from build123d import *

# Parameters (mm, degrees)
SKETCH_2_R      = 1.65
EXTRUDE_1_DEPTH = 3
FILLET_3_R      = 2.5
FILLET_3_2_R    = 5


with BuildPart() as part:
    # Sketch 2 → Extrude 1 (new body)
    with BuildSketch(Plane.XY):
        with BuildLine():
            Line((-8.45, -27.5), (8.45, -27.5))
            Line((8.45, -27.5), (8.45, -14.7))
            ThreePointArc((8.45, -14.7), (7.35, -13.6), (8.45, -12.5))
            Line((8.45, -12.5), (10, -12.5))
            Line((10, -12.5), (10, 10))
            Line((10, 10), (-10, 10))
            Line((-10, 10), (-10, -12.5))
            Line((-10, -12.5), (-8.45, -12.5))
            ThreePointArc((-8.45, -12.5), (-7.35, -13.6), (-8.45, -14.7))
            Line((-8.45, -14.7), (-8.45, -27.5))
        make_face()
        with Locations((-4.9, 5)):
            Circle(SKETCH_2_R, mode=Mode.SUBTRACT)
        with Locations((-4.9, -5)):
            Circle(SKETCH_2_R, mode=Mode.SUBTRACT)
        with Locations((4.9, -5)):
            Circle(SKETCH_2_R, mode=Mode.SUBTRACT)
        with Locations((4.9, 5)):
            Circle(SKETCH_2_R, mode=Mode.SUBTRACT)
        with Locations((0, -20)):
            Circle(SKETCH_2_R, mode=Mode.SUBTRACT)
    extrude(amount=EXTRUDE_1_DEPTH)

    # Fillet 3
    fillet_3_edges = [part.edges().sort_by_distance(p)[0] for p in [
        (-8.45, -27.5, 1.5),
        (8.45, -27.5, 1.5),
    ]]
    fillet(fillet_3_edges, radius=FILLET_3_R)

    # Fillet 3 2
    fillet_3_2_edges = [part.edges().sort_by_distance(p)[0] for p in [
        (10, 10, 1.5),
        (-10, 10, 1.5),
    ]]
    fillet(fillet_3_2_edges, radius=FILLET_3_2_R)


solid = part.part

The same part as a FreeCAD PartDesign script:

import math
import FreeCAD as App
import Part
import Sketcher
from FreeCAD import Vector


def edges_at(feature, points):
    """Names of the edges that pass closest to the given points."""
    edges = feature.Shape.Edges
    near = lambda p: min(range(len(edges)), key=lambda i: edges[i].distToShape(Part.Vertex(*p))[0])
    return sorted({f"Edge{near(p) + 1}" for p in points})

doc = App.newDocument("Part")
body = doc.addObject("PartDesign::Body", "Body")

# Sketch on XY plane
sketch1 = doc.addObject("Sketcher::SketchObject", "Sketch")
body.addObject(sketch1)
sketch1.AttachmentSupport = (doc.XY_Plane, [""])
sketch1.MapMode = "FlatFace"
sketch1.addGeometry(Part.LineSegment(Vector(-8.4, -27.5, 0), Vector(8.4, -27.5, 0)), False)
sketch1.addGeometry(Part.LineSegment(Vector(8.4, -27.5, 0), Vector(8.4, -14.7, 0)), False)
sketch1.addGeometry(Part.ArcOfCircle(Part.Circle(Vector(8.4, -13.6, 0), Vector(0, 0, 1), 1.1), math.radians(90), math.radians(270)), False)
sketch1.addGeometry(Part.LineSegment(Vector(8.4, -12.5, 0), Vector(10, -12.5, 0)), False)
sketch1.addGeometry(Part.LineSegment(Vector(10, -12.5, 0), Vector(10, 10, 0)), False)
sketch1.addGeometry(Part.LineSegment(Vector(10, 10, 0), Vector(-10, 10, 0)), False)
sketch1.addGeometry(Part.LineSegment(Vector(-10, 10, 0), Vector(-10, -12.5, 0)), False)
sketch1.addGeometry(Part.LineSegment(Vector(-10, -12.5, 0), Vector(-8.4, -12.5, 0)), False)
sketch1.addGeometry(Part.ArcOfCircle(Part.Circle(Vector(-8.4, -13.6, 0), Vector(0, 0, 1), 1.1), math.radians(-90), math.radians(90)), False)
sketch1.addGeometry(Part.LineSegment(Vector(-8.4, -14.7, 0), Vector(-8.4, -27.5, 0)), False)
sketch1.addGeometry(Part.Circle(Vector(0, -20, 0), Vector(0, 0, 1), 1.6), False)
sketch1.addGeometry(Part.Circle(Vector(-4.9, -5, 0), Vector(0, 0, 1), 1.6), False)
sketch1.addGeometry(Part.Circle(Vector(-4.9, 5, 0), Vector(0, 0, 1), 1.6), False)
sketch1.addGeometry(Part.Circle(Vector(4.9, -5, 0), Vector(0, 0, 1), 1.6), False)
sketch1.addGeometry(Part.Circle(Vector(4.9, 5, 0), Vector(0, 0, 1), 1.6), False)
sketch1.addConstraint(Sketcher.Constraint("Coincident", 0, 2, 1, 1))
sketch1.addConstraint(Sketcher.Constraint("Coincident", 1, 2, 2, 2))
sketch1.addConstraint(Sketcher.Constraint("Tangent", 2, 1, 3, 1))
sketch1.addConstraint(Sketcher.Constraint("Coincident", 3, 2, 4, 1))
sketch1.addConstraint(Sketcher.Constraint("Coincident", 4, 2, 5, 1))
sketch1.addConstraint(Sketcher.Constraint("Coincident", 5, 2, 6, 1))
sketch1.addConstraint(Sketcher.Constraint("Coincident", 6, 2, 7, 1))
sketch1.addConstraint(Sketcher.Constraint("Tangent", 7, 2, 8, 2))
sketch1.addConstraint(Sketcher.Constraint("Coincident", 8, 1, 9, 1))
sketch1.addConstraint(Sketcher.Constraint("Coincident", 9, 2, 0, 1))
sketch1.addConstraint(Sketcher.Constraint("Horizontal", 0))
sketch1.addConstraint(Sketcher.Constraint("Vertical", 1))
sketch1.addConstraint(Sketcher.Constraint("Horizontal", 3))
sketch1.addConstraint(Sketcher.Constraint("Vertical", 4))
sketch1.addConstraint(Sketcher.Constraint("Horizontal", 5))
sketch1.addConstraint(Sketcher.Constraint("Vertical", 6))
sketch1.addConstraint(Sketcher.Constraint("Horizontal", 7))
sketch1.addConstraint(Sketcher.Constraint("Vertical", 9))
sketch1.addConstraint(Sketcher.Constraint("Equal", 2, 8))
sketch1.addConstraint(Sketcher.Constraint("Equal", 10, 11))
sketch1.addConstraint(Sketcher.Constraint("Equal", 11, 12))
sketch1.addConstraint(Sketcher.Constraint("Equal", 12, 13))
sketch1.addConstraint(Sketcher.Constraint("Equal", 13, 14))
sketch1.addConstraint(Sketcher.Constraint("Symmetric", 12, 3, 13, 3, -1, 1))
sketch1.addConstraint(Sketcher.Constraint("Symmetric", 11, 3, 14, 3, -1, 1))
sketch1.addConstraint(Sketcher.Constraint("Symmetric", 2, 3, 8, 3, -2))
sketch1.addConstraint(Sketcher.Constraint("Symmetric", 11, 3, 13, 3, -2))
sketch1.addConstraint(Sketcher.Constraint("PointOnObject", 10, 3, -2))
sketch1.addConstraint(Sketcher.Constraint("Vertical", 2, 3, 0, 2))
sketch1.addConstraint(Sketcher.Constraint("Vertical", 7, 2, 8, 1))
sketch1.addConstraint(Sketcher.Constraint("Equal", 3, 7))
sketch1.addConstraint(Sketcher.Constraint("Diameter", 10, 3.3))
sketch1.addConstraint(Sketcher.Constraint("Radius", 2, 1.1))
sketch1.addConstraint(Sketcher.Constraint("DistanceX", 5, 2, 5, 1, 20.0))
sketch1.addConstraint(Sketcher.Constraint("DistanceX", 0, 1, 0, 2, 16.9))
sketch1.addConstraint(Sketcher.Constraint("DistanceY", 1, 1, 1, 2, 12.8))
sketch1.addConstraint(Sketcher.Constraint("DistanceY", 4, 1, 4, 2, 22.5))
sketch1.addConstraint(Sketcher.Constraint("DistanceY", 10, 3, -1, 1, 20.0))
sketch1.addConstraint(Sketcher.Constraint("DistanceY", 11, 3, -1, 1, 5.0))
sketch1.addConstraint(Sketcher.Constraint("DistanceY", -1, 1, 4, 2, 10.0))
sketch1.addConstraint(Sketcher.Constraint("DistanceX", 11, 3, -1, 1, 4.9))
pad1 = doc.addObject("PartDesign::Pad", "Pad")
body.addObject(pad1)
pad1.Profile = sketch1
pad1.Length = 3
doc.recompute()

fillet = doc.addObject("PartDesign::Fillet", "Fillet")
body.addObject(fillet)
fillet.Base = (pad1, edges_at(pad1, [(-8.45, -27.5, 1.5), (8.45, -27.5, 1.5)]))
fillet.Radius = 2.5
doc.recompute()

fillet2 = doc.addObject("PartDesign::Fillet", "Fillet001")
body.addObject(fillet2)
fillet2.Base = (fillet, edges_at(fillet, [(10, 10, 1.5), (-10, 10, 1.5)]))
fillet2.Radius = 5

doc.recompute()
